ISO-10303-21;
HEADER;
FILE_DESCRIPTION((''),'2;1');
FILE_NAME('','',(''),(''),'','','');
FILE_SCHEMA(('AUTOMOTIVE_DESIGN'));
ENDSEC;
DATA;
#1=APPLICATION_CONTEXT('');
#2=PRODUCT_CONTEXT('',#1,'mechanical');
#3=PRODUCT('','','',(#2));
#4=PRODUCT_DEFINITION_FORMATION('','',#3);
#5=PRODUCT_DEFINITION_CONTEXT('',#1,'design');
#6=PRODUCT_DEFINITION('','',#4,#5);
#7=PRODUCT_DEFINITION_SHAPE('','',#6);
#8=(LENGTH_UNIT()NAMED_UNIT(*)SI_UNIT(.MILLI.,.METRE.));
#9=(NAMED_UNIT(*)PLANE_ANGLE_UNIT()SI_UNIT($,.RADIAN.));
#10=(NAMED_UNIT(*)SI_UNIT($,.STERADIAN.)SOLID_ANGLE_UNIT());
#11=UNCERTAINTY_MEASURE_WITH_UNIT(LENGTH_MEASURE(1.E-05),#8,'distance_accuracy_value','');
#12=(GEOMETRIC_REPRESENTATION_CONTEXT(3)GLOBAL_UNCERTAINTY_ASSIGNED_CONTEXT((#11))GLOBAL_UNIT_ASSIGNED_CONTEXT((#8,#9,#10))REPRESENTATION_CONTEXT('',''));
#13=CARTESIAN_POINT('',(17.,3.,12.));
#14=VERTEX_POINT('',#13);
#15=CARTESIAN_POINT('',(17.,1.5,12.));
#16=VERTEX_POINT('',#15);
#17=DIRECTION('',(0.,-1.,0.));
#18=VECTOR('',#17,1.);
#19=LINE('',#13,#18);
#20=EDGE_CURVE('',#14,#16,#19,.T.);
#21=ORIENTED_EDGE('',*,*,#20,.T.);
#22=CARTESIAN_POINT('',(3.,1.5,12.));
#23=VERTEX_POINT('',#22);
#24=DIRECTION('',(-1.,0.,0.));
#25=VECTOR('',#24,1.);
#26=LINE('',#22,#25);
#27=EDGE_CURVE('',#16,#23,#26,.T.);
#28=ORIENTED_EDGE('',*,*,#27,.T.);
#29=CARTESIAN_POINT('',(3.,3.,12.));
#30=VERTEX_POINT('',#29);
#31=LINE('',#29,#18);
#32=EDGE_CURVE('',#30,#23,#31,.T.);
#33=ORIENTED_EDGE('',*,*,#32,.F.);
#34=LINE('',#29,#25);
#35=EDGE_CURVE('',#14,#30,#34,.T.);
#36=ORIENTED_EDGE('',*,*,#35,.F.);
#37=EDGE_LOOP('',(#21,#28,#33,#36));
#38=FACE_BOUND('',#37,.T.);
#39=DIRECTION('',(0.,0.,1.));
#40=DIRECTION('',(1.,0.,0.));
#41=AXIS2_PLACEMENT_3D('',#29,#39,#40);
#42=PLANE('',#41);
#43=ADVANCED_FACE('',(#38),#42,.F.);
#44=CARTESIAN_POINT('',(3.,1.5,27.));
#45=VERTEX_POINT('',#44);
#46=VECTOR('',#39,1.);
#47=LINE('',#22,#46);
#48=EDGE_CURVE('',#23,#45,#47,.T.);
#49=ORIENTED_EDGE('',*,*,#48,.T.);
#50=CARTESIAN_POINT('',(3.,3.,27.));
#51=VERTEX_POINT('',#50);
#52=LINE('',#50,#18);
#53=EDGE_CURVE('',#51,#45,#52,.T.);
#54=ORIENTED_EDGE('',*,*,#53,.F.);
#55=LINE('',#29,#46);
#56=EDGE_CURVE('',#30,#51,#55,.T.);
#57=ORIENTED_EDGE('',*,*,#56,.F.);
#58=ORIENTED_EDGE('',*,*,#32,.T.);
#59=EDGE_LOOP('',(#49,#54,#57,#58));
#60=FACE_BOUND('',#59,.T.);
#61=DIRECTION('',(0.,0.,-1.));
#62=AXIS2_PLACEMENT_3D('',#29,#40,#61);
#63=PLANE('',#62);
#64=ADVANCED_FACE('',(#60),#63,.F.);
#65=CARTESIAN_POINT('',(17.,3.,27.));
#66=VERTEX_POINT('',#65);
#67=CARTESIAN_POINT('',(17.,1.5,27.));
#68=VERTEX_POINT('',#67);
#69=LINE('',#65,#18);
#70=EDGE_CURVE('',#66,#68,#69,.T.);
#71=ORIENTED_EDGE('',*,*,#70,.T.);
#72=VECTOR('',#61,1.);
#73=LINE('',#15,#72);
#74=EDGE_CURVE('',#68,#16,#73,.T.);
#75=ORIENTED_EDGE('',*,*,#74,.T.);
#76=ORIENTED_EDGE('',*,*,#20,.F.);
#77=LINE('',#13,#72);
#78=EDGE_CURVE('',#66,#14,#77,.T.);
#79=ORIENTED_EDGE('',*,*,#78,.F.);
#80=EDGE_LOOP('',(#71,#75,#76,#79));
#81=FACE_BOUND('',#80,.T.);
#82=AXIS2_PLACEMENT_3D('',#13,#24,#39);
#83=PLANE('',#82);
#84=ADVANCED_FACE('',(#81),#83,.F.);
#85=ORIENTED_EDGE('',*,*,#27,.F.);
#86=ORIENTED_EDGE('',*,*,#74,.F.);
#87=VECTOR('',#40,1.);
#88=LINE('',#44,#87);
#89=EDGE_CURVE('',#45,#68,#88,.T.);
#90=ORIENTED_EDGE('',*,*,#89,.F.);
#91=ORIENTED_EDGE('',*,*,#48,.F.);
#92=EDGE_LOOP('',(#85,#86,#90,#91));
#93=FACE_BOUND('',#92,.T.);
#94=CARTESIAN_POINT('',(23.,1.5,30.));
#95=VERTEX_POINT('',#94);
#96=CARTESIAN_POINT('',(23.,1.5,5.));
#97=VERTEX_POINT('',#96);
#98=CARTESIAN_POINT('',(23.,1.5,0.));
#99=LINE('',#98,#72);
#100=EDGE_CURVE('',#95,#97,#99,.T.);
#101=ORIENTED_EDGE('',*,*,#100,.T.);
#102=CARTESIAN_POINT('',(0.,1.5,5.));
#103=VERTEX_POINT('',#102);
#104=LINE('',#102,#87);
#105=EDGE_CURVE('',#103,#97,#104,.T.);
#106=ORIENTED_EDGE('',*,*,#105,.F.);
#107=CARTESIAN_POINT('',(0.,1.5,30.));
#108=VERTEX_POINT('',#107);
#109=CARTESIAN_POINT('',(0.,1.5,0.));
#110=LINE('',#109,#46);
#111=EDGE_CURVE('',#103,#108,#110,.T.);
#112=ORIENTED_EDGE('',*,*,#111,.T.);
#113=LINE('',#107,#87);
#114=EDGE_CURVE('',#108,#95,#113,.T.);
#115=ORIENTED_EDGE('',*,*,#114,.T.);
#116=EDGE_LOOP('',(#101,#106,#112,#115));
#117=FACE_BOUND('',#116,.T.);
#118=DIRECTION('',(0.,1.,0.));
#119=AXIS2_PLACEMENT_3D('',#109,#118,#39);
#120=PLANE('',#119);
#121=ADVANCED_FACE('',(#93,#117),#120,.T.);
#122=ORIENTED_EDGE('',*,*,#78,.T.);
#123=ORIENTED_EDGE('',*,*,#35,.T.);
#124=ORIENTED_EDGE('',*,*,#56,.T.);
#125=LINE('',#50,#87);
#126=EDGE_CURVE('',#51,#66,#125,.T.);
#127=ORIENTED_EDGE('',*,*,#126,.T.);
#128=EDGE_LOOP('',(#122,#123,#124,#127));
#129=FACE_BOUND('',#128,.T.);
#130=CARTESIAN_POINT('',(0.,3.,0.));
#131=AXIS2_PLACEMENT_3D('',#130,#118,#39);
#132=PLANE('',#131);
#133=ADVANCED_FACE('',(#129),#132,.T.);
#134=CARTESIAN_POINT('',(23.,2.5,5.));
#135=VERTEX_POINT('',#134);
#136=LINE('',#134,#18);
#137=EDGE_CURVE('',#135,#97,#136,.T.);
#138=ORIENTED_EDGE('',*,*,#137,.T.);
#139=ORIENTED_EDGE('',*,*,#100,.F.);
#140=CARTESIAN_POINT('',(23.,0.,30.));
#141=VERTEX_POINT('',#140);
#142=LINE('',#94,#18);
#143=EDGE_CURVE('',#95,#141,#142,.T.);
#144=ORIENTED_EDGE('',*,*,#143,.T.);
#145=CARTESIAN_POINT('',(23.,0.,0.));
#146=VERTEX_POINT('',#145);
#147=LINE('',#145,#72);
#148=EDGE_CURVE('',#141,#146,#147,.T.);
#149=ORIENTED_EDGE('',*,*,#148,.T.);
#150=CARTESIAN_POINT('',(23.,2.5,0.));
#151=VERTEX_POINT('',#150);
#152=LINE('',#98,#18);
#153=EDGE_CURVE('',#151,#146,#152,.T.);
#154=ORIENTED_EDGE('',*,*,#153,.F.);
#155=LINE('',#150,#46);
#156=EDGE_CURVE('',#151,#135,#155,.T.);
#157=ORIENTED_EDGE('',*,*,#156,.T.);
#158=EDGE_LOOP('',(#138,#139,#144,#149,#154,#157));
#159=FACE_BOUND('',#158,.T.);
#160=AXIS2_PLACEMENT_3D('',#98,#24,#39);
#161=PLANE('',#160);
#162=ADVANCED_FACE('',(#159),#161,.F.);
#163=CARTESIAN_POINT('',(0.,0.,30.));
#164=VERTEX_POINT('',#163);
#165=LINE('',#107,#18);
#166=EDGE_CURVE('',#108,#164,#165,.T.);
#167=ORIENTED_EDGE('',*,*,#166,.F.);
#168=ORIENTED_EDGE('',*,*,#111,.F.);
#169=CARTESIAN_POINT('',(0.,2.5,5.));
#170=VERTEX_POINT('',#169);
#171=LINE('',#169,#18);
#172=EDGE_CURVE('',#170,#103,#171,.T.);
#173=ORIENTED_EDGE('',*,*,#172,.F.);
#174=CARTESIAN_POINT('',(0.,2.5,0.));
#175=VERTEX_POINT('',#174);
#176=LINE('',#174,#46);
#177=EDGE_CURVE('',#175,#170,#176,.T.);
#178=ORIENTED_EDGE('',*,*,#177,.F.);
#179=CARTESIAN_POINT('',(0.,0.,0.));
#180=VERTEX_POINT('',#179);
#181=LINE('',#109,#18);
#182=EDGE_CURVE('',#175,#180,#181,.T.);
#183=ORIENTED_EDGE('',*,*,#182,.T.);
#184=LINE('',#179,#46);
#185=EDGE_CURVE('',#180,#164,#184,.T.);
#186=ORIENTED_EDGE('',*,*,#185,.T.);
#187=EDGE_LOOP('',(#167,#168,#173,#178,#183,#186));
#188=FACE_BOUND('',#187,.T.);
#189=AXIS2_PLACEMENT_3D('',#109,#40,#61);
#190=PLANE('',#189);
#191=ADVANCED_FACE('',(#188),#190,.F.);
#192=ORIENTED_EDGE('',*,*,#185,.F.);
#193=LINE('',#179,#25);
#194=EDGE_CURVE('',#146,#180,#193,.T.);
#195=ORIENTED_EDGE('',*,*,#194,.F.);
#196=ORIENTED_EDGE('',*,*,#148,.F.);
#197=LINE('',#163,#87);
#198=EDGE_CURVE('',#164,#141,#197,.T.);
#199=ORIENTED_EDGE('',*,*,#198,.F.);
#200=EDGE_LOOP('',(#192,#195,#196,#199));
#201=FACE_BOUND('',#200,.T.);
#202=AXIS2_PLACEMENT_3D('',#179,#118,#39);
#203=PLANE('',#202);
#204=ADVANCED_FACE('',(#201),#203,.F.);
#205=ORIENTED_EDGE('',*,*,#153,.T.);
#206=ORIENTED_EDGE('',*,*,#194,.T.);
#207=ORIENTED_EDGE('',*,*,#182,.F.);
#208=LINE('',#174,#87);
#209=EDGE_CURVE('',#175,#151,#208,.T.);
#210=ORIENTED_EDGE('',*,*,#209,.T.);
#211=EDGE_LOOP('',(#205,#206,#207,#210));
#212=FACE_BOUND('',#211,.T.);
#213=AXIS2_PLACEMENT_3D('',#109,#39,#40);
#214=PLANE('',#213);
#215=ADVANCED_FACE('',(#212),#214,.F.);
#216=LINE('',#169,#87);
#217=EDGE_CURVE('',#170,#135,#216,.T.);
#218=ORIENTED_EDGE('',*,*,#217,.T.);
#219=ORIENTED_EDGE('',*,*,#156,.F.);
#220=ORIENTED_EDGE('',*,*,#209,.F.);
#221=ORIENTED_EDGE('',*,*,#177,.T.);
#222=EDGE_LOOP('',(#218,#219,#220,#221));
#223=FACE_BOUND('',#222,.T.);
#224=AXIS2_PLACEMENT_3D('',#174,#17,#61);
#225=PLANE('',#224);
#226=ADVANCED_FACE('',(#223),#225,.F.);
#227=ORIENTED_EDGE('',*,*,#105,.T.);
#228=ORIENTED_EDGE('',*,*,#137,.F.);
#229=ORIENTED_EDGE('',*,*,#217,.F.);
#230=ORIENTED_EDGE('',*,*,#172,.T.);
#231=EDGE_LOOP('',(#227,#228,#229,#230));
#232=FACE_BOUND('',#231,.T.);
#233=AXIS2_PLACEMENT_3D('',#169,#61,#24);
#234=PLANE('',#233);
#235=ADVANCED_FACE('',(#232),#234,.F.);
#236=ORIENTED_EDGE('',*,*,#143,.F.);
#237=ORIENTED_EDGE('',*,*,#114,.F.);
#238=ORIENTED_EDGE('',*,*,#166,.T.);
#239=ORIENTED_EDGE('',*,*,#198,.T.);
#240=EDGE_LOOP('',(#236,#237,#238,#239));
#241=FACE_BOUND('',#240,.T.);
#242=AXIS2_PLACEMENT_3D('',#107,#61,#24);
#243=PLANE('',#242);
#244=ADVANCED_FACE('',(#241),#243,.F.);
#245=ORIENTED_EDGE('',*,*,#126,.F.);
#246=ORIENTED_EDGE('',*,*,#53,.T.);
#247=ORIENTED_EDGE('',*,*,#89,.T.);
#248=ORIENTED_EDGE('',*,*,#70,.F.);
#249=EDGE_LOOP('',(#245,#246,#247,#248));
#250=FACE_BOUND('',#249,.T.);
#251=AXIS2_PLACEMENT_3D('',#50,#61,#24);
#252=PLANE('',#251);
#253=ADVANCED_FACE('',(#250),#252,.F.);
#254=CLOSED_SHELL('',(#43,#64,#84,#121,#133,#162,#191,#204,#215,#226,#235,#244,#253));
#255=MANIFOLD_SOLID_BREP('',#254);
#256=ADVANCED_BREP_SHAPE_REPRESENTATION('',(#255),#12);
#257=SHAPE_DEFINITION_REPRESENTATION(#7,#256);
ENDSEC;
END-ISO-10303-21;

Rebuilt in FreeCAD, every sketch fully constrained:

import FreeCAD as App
import Part
import Sketcher

V = App.Vector
Q = App.Units.Quantity

doc = App.newDocument("Part")
body = doc.addObject("PartDesign::Body", "Body")

# Sketch on XZ plane
sketch1 = doc.addObject("Sketcher::SketchObject", "Sketch")
body.addObject(sketch1)
sketch1.AttachmentSupport = (doc.XZ_Plane, [""])
sketch1.MapMode = "FlatFace"
sketch1.addGeometry(Part.LineSegment(V(0, 0, 0), V(0, 30, 0)), False)
sketch1.addGeometry(Part.LineSegment(V(0, 30, 0), V(23, 30, 0)), False)
sketch1.addGeometry(Part.LineSegment(V(23, 30, 0), V(23, 0, 0)), False)
sketch1.addGeometry(Part.LineSegment(V(23, 0, 0), V(0, 0, 0)), False)
sketch1.addConstraint(Sketcher.Constraint("Coincident", 0, 2, 1, 1))
sketch1.addConstraint(Sketcher.Constraint("Coincident", 1, 2, 2, 1))
sketch1.addConstraint(Sketcher.Constraint("Coincident", 2, 2, 3, 1))
sketch1.addConstraint(Sketcher.Constraint("Coincident", 3, 2, 0, 1))
sketch1.addConstraint(Sketcher.Constraint("Vertical", 0))
sketch1.addConstraint(Sketcher.Constraint("Horizontal", 1))
sketch1.addConstraint(Sketcher.Constraint("Vertical", 2))
sketch1.addConstraint(Sketcher.Constraint("Horizontal", 3))
sketch1.addConstraint(Sketcher.Constraint("Coincident", 3, 2, -1, 1))
sketch1.addConstraint(Sketcher.Constraint("DistanceX", 1, 1, 1, 2, Q("23 mm")))
sketch1.addConstraint(Sketcher.Constraint("DistanceY", 0, 1, 0, 2, Q("30 mm")))
pad1 = doc.addObject("PartDesign::Pad", "Pad")
body.addObject(pad1)
pad1.Profile = sketch1
pad1.Length = 1.5
pad1.Reversed = True

# Sketch on XZ plane
sketch2 = doc.addObject("Sketcher::SketchObject", "Sketch001")
body.addObject(sketch2)
sketch2.AttachmentSupport = (doc.XZ_Plane, [""])
sketch2.MapMode = "FlatFace"
sketch2.AttachmentOffset = App.Placement(V(0, 0, -1.5), App.Rotation())
sketch2.addGeometry(Part.LineSegment(V(3, 12, 0), V(3, 27, 0)), False)
sketch2.addGeometry(Part.LineSegment(V(3, 27, 0), V(17, 27, 0)), False)
sketch2.addGeometry(Part.LineSegment(V(17, 27, 0), V(17, 12, 0)), False)
sketch2.addGeometry(Part.LineSegment(V(17, 12, 0), V(3, 12, 0)), False)
sketch2.addConstraint(Sketcher.Constraint("Coincident", 0, 2, 1, 1))
sketch2.addConstraint(Sketcher.Constraint("Coincident", 1, 2, 2, 1))
sketch2.addConstraint(Sketcher.Constraint("Coincident", 2, 2, 3, 1))
sketch2.addConstraint(Sketcher.Constraint("Coincident", 3, 2, 0, 1))
sketch2.addConstraint(Sketcher.Constraint("Vertical", 0))
sketch2.addConstraint(Sketcher.Constraint("Horizontal", 1))
sketch2.addConstraint(Sketcher.Constraint("Vertical", 2))
sketch2.addConstraint(Sketcher.Constraint("Horizontal", 3))
sketch2.addConstraint(Sketcher.Constraint("DistanceX", 1, 1, 1, 2, Q("14 mm")))
sketch2.addConstraint(Sketcher.Constraint("DistanceY", 0, 1, 0, 2, Q("15 mm")))
sketch2.addConstraint(Sketcher.Constraint("DistanceX", -1, 1, 0, 2, Q("3 mm")))
sketch2.addConstraint(Sketcher.Constraint("DistanceY", -1, 1, 0, 2, Q("27 mm")))
pad2 = doc.addObject("PartDesign::Pad", "Pad001")
body.addObject(pad2)
pad2.Profile = sketch2
pad2.Length = 1.5
pad2.Reversed = True

# Sketch on XZ plane
sketch3 = doc.addObject("Sketcher::SketchObject", "Sketch002")
body.addObject(sketch3)
sketch3.AttachmentSupport = (doc.XZ_Plane, [""])
sketch3.MapMode = "FlatFace"
sketch3.AttachmentOffset = App.Placement(V(0, 0, -1.5), App.Rotation())
sketch3.addGeometry(Part.LineSegment(V(0, 0, 0), V(0, 5, 0)), False)
sketch3.addGeometry(Part.LineSegment(V(0, 5, 0), V(23, 5, 0)), False)
sketch3.addGeometry(Part.LineSegment(V(23, 5, 0), V(23, 0, 0)), False)
sketch3.addGeometry(Part.LineSegment(V(23, 0, 0), V(0, 0, 0)), False)
sketch3.addConstraint(Sketcher.Constraint("Coincident", 0, 2, 1, 1))
sketch3.addConstraint(Sketcher.Constraint("Coincident", 1, 2, 2, 1))
sketch3.addConstraint(Sketcher.Constraint("Coincident", 2, 2, 3, 1))
sketch3.addConstraint(Sketcher.Constraint("Coincident", 3, 2, 0, 1))
sketch3.addConstraint(Sketcher.Constraint("Vertical", 0))
sketch3.addConstraint(Sketcher.Constraint("Horizontal", 1))
sketch3.addConstraint(Sketcher.Constraint("Vertical", 2))
sketch3.addConstraint(Sketcher.Constraint("Horizontal", 3))
sketch3.addConstraint(Sketcher.Constraint("Coincident", 3, 2, -1, 1))
sketch3.addConstraint(Sketcher.Constraint("DistanceX", 1, 1, 1, 2, Q("23 mm")))
sketch3.addConstraint(Sketcher.Constraint("DistanceY", 0, 1, 0, 2, Q("5 mm")))
pad3 = doc.addObject("PartDesign::Pad", "Pad002")
body.addObject(pad3)
pad3.Profile = sketch3
pad3.Length = 1
pad3.Reversed = True

doc.recompute()
